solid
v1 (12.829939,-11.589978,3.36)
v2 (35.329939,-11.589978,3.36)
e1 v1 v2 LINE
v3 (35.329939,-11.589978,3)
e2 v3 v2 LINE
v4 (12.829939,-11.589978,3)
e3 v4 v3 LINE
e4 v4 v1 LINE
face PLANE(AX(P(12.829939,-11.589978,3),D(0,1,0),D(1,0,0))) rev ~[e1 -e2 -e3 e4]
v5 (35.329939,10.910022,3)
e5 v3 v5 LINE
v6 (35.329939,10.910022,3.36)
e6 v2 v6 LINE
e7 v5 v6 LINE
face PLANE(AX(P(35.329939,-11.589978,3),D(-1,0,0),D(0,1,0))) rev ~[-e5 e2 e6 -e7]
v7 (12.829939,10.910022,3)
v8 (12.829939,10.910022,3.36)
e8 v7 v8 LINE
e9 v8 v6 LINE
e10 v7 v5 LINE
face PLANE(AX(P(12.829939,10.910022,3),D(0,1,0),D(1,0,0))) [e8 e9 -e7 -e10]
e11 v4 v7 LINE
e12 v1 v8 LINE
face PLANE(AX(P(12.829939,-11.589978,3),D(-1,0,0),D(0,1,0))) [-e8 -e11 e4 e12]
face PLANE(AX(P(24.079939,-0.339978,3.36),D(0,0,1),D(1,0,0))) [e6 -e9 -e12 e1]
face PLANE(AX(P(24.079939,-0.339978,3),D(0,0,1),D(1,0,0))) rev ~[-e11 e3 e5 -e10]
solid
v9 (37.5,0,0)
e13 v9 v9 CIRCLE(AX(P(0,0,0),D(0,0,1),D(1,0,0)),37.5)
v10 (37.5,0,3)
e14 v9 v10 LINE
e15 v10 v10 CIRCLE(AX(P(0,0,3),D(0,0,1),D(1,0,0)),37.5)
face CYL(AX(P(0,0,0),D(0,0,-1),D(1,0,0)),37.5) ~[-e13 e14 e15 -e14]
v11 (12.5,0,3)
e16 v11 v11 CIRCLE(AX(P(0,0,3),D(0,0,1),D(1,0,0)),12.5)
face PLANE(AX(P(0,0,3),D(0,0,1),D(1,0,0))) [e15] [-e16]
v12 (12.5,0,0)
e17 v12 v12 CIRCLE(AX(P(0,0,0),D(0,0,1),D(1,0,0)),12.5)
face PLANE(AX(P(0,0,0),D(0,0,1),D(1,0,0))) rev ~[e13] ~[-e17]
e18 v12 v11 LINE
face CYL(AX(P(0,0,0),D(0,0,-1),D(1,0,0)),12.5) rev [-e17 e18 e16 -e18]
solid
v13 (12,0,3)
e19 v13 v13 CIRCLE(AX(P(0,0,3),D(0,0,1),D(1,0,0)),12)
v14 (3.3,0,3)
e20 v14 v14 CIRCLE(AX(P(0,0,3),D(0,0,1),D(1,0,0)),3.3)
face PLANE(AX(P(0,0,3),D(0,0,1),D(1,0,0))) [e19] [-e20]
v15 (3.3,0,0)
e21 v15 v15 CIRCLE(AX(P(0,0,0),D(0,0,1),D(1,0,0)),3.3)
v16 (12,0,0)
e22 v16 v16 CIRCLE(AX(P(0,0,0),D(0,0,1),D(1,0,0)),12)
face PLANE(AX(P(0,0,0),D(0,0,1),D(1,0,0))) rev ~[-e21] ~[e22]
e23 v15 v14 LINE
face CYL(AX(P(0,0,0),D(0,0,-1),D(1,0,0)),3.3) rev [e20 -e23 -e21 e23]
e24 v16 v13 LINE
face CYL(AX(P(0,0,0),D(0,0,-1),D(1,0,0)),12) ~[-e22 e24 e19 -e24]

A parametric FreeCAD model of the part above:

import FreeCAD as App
import Part
import Sketcher
from FreeCAD import Vector
Q = App.Units.Quantity

doc = App.newDocument("Part")
body = doc.addObject("PartDesign::Body", "Body")

# Sketch on XY plane
sketch1 = body.newObject("Sketcher::SketchObject", "Sketch")
sketch1.AttachmentSupport = (doc.getObject("XY_Plane"), [""])
sketch1.MapMode = "FlatFace"
sketch1.addGeometry(Part.Circle(Vector(0, 0, 0), Vector(0, 0, 1), 37.5), False)
sketch1.addGeometry(Part.Circle(Vector(0, 0, 0), Vector(0, 0, 1), 12.5), False)
sketch1.addConstraint(Sketcher.Constraint("Coincident", 0, 3, -1, 1))
sketch1.addConstraint(Sketcher.Constraint("Coincident", 1, 3, -1, 1))
sketch1.addConstraint(Sketcher.Constraint("Diameter", 0, Q("75 mm")))
sketch1.addConstraint(Sketcher.Constraint("Diameter", 1, Q("25 mm")))
pad1 = body.newObject("PartDesign::Pad", "Pad")
pad1.Profile = sketch1
pad1.Length = 3
body2 = doc.addObject("PartDesign::Body", "Body001")

# Sketch on XY plane
sketch2 = body2.newObject("Sketcher::SketchObject", "Sketch001")
sketch2.AttachmentSupport = (doc.getObject("XY_Plane001"), [""])
sketch2.MapMode = "FlatFace"
sketch2.addGeometry(Part.Circle(Vector(0, 0, 0), Vector(0, 0, 1), 12), False)
sketch2.addGeometry(Part.Circle(Vector(0, 0, 0), Vector(0, 0, 1), 3.3), False)
sketch2.addConstraint(Sketcher.Constraint("Coincident", 0, 3, -1, 1))
sketch2.addConstraint(Sketcher.Constraint("Coincident", 1, 3, -1, 1))
sketch2.addConstraint(Sketcher.Constraint("Diameter", 0, Q("24 mm")))
sketch2.addConstraint(Sketcher.Constraint("Diameter", 1, Q("6.6 mm")))
pad2 = body2.newObject("PartDesign::Pad", "Pad001")
pad2.Profile = sketch2
pad2.Length = 3
body3 = doc.addObject("PartDesign::Body", "Body002")

# Sketch on XY plane
sketch3 = body3.newObject("Sketcher::SketchObject", "Sketch002")
sketch3.AttachmentSupport = (doc.getObject("XY_Plane002"), [""])
sketch3.MapMode = "FlatFace"
sketch3.AttachmentOffset = App.Placement(Vector(0, 0, 3), App.Rotation())
sketch3.addGeometry(Part.LineSegment(Vector(12.829939, 10.910022, 0), Vector(12.829939, -11.589978, 0)), False)
sketch3.addGeometry(Part.LineSegment(Vector(12.829939, -11.589978, 0), Vector(35.329939, -11.589978, 0)), False)
sketch3.addGeometry(Part.LineSegment(Vector(35.329939, -11.589978, 0), Vector(35.329939, 10.910022, 0)), False)
sketch3.addGeometry(Part.LineSegment(Vector(35.329939, 10.910022, 0), Vector(12.829939, 10.910022, 0)), False)
sketch3.addConstraint(Sketcher.Constraint("Coincident", 0, 2, 1, 1))
sketch3.addConstraint(Sketcher.Constraint("Coincident", 1, 2, 2, 1))
sketch3.addConstraint(Sketcher.Constraint("Coincident", 2, 2, 3, 1))
sketch3.addConstraint(Sketcher.Constraint("Coincident", 3, 2, 0, 1))
sketch3.addConstraint(Sketcher.Constraint("Vertical", 0))
sketch3.addConstraint(Sketcher.Constraint("Horizontal", 1))
sketch3.addConstraint(Sketcher.Constraint("Vertical", 2))
sketch3.addConstraint(Sketcher.Constraint("Horizontal", 3))
sketch3.addConstraint(Sketcher.Constraint("Equal", 3, 0))
sketch3.addConstraint(Sketcher.Constraint("DistanceX", 1, 1, 1, 2, Q("22.5 mm")))
sketch3.addConstraint(Sketcher.Constraint("DistanceX", -1, 1, 0, 2, Q("12.829939 mm")))
sketch3.addConstraint(Sketcher.Constraint("DistanceY", 0, 2, -1, 1, Q("11.589978 mm")))
pad3 = body3.newObject("PartDesign::Pad", "Pad002")
pad3.Profile = sketch3
pad3.Length = 0.36

doc.recompute()
